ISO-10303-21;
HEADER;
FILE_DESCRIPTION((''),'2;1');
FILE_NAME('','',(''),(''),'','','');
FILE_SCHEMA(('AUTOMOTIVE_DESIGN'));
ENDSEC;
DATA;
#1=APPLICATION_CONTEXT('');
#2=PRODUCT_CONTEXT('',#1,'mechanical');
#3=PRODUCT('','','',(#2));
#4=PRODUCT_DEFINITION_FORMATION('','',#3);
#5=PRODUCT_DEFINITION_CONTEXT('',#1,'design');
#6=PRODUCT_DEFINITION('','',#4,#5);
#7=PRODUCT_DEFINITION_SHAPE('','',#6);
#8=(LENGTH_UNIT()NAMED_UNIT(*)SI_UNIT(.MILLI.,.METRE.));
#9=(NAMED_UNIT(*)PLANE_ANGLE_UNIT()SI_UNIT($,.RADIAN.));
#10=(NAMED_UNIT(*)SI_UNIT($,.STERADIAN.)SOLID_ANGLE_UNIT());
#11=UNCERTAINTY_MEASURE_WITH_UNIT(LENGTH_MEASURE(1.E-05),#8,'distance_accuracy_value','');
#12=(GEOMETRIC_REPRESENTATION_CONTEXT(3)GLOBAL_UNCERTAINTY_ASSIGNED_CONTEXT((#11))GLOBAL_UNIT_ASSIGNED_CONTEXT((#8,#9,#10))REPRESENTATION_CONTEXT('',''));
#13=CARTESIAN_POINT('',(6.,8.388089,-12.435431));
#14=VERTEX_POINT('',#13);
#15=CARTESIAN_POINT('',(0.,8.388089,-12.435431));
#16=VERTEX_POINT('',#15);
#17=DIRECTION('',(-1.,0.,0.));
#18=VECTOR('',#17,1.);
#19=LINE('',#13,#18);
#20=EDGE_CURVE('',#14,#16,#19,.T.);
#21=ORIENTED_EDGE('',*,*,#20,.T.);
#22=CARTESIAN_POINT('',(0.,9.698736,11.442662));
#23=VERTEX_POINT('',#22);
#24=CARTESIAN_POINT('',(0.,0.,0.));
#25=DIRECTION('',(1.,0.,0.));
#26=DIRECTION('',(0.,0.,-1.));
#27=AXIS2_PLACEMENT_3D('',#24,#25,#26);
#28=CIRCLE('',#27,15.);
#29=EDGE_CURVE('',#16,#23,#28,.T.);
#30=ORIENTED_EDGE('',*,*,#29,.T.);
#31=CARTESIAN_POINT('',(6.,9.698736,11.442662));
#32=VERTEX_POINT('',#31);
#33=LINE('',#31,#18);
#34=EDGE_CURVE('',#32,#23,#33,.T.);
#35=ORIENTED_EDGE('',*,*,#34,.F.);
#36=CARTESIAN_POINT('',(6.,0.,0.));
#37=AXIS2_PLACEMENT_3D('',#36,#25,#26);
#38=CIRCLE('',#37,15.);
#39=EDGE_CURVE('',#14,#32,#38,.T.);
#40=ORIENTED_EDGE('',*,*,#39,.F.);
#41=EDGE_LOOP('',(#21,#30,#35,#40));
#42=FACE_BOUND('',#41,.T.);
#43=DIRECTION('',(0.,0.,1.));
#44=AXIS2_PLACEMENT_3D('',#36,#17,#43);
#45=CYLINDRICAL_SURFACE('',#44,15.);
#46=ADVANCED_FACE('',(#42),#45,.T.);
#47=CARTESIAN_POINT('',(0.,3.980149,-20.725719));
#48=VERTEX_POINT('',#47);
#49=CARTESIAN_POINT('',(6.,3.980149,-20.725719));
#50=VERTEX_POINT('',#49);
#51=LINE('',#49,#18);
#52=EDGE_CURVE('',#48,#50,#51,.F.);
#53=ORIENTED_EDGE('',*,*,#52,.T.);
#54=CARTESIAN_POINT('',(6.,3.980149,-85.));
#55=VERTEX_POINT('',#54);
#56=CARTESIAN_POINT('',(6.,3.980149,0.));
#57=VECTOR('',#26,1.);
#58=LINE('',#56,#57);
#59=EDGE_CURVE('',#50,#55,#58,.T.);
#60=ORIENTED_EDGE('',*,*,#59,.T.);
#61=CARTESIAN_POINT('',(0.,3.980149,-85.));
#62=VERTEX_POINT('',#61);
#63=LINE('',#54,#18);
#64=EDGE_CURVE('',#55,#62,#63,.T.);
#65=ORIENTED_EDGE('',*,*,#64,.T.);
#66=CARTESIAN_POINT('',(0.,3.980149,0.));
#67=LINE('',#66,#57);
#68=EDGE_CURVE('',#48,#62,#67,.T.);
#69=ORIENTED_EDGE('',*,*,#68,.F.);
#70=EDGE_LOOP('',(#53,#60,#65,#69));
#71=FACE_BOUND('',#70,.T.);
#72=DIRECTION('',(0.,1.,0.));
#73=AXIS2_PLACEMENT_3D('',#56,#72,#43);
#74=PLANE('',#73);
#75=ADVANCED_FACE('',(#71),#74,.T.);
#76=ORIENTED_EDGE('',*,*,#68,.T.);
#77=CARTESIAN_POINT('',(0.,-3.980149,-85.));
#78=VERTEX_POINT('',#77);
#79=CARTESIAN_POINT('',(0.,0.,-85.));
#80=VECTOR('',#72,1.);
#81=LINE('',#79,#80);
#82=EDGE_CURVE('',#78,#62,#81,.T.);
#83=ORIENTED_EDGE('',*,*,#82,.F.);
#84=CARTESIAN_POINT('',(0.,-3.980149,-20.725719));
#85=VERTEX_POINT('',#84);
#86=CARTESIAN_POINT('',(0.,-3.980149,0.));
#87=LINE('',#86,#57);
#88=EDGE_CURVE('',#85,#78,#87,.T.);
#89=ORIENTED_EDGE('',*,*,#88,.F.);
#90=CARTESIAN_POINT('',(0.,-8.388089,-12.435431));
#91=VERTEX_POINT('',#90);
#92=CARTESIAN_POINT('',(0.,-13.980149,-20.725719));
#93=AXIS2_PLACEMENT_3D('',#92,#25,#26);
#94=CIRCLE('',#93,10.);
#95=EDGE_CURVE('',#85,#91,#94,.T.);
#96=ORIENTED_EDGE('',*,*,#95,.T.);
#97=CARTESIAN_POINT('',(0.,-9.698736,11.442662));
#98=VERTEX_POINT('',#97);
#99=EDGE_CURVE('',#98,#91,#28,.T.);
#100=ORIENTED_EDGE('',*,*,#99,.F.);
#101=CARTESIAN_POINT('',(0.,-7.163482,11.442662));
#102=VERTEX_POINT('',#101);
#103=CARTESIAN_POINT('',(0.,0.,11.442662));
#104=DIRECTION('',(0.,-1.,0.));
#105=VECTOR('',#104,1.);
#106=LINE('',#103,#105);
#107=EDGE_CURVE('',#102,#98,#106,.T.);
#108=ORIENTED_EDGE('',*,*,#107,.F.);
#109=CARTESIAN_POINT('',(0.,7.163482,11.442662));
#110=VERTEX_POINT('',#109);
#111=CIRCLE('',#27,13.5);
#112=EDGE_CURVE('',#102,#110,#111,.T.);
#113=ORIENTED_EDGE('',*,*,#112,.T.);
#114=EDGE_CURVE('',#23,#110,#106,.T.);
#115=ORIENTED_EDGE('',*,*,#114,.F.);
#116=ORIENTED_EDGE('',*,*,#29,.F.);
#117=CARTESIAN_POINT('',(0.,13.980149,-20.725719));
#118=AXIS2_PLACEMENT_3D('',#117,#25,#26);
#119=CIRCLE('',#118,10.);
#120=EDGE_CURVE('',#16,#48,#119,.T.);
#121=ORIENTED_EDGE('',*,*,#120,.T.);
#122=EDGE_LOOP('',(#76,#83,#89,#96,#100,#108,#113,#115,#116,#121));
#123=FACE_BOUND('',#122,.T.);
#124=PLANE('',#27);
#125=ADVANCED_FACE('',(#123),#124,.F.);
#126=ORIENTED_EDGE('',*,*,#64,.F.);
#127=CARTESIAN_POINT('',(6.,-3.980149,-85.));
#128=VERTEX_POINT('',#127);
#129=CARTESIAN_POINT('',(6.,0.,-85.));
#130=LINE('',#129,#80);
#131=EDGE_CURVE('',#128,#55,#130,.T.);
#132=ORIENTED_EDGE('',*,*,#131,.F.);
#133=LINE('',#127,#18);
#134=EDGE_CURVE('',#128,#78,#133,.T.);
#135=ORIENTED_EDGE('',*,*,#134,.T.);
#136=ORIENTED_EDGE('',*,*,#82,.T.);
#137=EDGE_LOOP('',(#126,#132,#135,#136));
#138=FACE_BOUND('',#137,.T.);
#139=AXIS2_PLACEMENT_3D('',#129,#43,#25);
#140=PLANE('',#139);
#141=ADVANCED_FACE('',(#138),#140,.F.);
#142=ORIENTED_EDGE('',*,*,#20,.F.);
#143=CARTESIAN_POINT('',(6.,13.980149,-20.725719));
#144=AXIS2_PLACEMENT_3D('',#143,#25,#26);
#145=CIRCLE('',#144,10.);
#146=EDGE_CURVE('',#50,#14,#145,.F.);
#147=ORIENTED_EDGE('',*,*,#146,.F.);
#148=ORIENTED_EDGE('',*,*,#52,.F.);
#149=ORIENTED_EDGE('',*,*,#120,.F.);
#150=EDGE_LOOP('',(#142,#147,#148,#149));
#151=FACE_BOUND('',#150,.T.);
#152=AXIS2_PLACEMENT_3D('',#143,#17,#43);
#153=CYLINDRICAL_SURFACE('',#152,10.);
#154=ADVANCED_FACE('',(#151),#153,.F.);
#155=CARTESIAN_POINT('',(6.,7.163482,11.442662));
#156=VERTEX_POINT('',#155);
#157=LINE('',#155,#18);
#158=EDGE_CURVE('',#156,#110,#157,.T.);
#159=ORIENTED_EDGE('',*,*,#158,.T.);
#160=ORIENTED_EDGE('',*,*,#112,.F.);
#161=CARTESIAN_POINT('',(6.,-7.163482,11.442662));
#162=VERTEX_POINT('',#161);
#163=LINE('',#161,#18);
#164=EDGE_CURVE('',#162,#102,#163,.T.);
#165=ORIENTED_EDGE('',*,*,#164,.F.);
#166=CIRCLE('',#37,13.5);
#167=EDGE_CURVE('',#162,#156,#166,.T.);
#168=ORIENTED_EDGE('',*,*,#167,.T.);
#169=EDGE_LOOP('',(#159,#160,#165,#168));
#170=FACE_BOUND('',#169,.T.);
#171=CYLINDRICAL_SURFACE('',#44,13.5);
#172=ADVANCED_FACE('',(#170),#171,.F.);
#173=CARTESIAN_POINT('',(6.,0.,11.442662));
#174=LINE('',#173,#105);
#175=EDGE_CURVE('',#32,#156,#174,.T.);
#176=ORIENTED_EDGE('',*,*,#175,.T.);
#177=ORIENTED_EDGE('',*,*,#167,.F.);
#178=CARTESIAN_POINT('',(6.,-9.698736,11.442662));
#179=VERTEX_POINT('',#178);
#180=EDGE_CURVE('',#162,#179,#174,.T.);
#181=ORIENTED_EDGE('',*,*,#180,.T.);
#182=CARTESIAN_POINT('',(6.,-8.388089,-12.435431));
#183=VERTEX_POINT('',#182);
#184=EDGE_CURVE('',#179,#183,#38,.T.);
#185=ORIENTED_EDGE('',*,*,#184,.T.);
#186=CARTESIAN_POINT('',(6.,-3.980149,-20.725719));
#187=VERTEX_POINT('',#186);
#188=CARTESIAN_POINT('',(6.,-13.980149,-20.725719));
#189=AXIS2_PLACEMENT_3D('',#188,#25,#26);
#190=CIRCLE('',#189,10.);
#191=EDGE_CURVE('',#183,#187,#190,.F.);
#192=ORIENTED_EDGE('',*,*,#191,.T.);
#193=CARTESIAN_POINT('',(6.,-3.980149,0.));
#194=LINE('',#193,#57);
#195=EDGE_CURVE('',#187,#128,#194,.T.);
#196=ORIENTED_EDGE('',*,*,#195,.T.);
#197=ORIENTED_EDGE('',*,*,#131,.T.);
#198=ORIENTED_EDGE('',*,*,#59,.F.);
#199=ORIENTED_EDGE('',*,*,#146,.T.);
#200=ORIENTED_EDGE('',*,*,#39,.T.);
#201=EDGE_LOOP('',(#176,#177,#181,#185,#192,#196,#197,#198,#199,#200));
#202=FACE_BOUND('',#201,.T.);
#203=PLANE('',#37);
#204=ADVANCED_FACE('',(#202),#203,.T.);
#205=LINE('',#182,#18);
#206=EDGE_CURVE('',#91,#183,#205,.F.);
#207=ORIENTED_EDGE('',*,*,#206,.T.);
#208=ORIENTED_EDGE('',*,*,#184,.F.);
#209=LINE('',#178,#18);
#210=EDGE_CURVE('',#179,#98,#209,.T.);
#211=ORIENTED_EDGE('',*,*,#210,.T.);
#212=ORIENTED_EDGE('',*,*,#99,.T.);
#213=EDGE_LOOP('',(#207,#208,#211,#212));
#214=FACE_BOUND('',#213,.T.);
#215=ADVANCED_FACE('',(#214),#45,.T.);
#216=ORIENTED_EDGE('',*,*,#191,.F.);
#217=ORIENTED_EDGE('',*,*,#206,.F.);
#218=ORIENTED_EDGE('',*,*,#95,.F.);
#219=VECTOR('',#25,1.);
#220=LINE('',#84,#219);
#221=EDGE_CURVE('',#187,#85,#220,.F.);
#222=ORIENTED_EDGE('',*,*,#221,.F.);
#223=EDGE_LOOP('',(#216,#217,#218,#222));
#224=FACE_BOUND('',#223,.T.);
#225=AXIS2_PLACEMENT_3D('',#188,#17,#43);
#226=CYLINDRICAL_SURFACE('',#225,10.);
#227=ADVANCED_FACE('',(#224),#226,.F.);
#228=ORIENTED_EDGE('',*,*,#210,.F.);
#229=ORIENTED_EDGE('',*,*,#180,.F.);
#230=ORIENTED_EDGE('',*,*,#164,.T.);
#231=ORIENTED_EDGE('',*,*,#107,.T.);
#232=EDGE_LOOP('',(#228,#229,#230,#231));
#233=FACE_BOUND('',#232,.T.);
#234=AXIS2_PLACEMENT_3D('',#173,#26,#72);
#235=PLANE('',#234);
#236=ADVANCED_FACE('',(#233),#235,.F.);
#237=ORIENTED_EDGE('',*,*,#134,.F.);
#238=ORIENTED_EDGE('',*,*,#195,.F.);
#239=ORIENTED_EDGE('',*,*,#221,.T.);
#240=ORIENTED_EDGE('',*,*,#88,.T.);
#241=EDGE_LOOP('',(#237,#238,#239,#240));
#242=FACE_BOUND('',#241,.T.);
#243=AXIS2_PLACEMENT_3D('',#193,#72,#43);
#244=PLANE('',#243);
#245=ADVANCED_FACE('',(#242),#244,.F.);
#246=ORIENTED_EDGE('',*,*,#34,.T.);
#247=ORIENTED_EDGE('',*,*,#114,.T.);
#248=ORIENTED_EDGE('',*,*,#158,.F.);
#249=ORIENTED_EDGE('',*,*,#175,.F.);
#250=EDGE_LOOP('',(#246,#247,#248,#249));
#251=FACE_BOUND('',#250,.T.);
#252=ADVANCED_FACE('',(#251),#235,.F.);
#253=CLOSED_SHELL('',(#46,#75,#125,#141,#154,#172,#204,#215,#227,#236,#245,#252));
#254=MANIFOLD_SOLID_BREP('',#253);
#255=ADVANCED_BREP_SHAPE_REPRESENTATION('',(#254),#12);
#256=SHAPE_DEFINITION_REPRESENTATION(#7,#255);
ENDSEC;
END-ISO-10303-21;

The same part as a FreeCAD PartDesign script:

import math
import FreeCAD as App
import Part
import Sketcher
from FreeCAD import Vector
Q = App.Units.Quantity


def edges_at(feature, points):
    """Names of the edges that pass closest to the given points."""
    edges = feature.Shape.Edges
    near = lambda p: min(range(len(edges)), key=lambda i: edges[i].distToShape(Part.Vertex(*p))[0])
    return sorted({f"Edge{near(p) + 1}" for p in points})

doc = App.newDocument("Part")
params = doc.addObject("Spreadsheet::Sheet", "Params")
for row, (alias, value) in enumerate([
    ("sketch1_radius", "15 mm"),
    ("sketch1_radius2", "13.5 mm"),
    ("pad1_length", "6 mm"),
    ("fillet_radius", "10 mm"),
], start=1):
    params.set(f"A{row}", alias)
    params.set(f"B{row}", "=" + value)
    params.setAlias(f"B{row}", alias)

body = doc.addObject("PartDesign::Body", "Body")

# Sketch on YZ plane
sketch1 = body.newObject("Sketcher::SketchObject", "Sketch")
sketch1.AttachmentSupport = (doc.getObject("YZ_Plane"), [""])
sketch1.MapMode = "FlatFace"
sketch1.addGeometry([
    Part.ArcOfCircle(Part.Circle(Vector(0, 0, 0), Vector(0, 0, 1), 15), math.radians(-74.612649), math.radians(49.715578)),  # 0
    Part.LineSegment(Vector(9.698736, 11.442662, 0), Vector(7.163482, 11.442662, 0)),  # 1
    Part.ArcOfCircle(Part.Circle(Vector(0, 0, 0), Vector(0, 0, 1), 13.5), math.radians(122.047917), math.radians(417.952083)),  # 2
    Part.LineSegment(Vector(-7.163482, 11.442662, 0), Vector(-9.698736, 11.442662, 0)),  # 3
    Part.ArcOfCircle(Part.Circle(Vector(0, 0, 0), Vector(0, 0, 1), 15), math.radians(130.284422), math.radians(254.612649)),  # 4
    Part.LineSegment(Vector(-3.980149, -14.46231, 0), Vector(-3.980149, -85, 0)),  # 5
    Part.LineSegment(Vector(-3.980149, -85, 0), Vector(3.980149, -85, 0)),  # 6
    Part.LineSegment(Vector(3.980149, -85, 0), Vector(3.980149, -14.46231, 0)),  # 7
], False)
sketch1.addConstraint([
    Sketcher.Constraint("Coincident", 0, 2, 1, 1),
    Sketcher.Constraint("Coincident", 1, 2, 2, 2),
    Sketcher.Constraint("Coincident", 2, 1, 3, 1),
    Sketcher.Constraint("Coincident", 3, 2, 4, 1),
    Sketcher.Constraint("Coincident", 4, 2, 5, 1),
    Sketcher.Constraint("Coincident", 5, 2, 6, 1),
    Sketcher.Constraint("Coincident", 6, 2, 7, 1),
    Sketcher.Constraint("Coincident", 7, 2, 0, 1),
    Sketcher.Constraint("Horizontal", 1),
    Sketcher.Constraint("Horizontal", 3),
    Sketcher.Constraint("Vertical", 5),
    Sketcher.Constraint("Horizontal", 6),
    Sketcher.Constraint("Vertical", 7),
    Sketcher.Constraint("Coincident", 0, 3, -1, 1),
    Sketcher.Constraint("Coincident", 2, 3, -1, 1),
    Sketcher.Constraint("Coincident", 4, 3, -1, 1),
    Sketcher.Constraint("Equal", 0, 4),
    Sketcher.Constraint("Horizontal", 1, 2, 2, 1),
    Sketcher.Constraint("Horizontal", 4, 2, 7, 2),
    Sketcher.Constraint("Radius", 0, Q("15 mm")),
    Sketcher.Constraint("Radius", 2, Q("13.5 mm")),
    Sketcher.Constraint("DistanceY", 5, 2, -1, 1, Q("85 mm")),
    Sketcher.Constraint("DistanceX", 6, 1, 6, 2, Q("7.960298 mm")),
    Sketcher.Constraint("DistanceX", 1, 2, 1, 1, Q("2.535254 mm")),
])
sketch1.setExpression("Constraints[19]", "Params.sketch1_radius")
sketch1.setExpression("Constraints[20]", "Params.sketch1_radius2")
pad1 = body.newObject("PartDesign::Pad", "Pad")
pad1.Profile = sketch1
pad1.setExpression("Length", "Params.pad1_length")
doc.recompute()

fillet = body.newObject("PartDesign::Fillet", "Fillet")
fillet.Base = (pad1, edges_at(pad1, [(3, 3.98, -14.462), (3, -3.98, -14.462)]))
fillet.setExpression("Radius", "Params.fillet_radius")

doc.recompute()
